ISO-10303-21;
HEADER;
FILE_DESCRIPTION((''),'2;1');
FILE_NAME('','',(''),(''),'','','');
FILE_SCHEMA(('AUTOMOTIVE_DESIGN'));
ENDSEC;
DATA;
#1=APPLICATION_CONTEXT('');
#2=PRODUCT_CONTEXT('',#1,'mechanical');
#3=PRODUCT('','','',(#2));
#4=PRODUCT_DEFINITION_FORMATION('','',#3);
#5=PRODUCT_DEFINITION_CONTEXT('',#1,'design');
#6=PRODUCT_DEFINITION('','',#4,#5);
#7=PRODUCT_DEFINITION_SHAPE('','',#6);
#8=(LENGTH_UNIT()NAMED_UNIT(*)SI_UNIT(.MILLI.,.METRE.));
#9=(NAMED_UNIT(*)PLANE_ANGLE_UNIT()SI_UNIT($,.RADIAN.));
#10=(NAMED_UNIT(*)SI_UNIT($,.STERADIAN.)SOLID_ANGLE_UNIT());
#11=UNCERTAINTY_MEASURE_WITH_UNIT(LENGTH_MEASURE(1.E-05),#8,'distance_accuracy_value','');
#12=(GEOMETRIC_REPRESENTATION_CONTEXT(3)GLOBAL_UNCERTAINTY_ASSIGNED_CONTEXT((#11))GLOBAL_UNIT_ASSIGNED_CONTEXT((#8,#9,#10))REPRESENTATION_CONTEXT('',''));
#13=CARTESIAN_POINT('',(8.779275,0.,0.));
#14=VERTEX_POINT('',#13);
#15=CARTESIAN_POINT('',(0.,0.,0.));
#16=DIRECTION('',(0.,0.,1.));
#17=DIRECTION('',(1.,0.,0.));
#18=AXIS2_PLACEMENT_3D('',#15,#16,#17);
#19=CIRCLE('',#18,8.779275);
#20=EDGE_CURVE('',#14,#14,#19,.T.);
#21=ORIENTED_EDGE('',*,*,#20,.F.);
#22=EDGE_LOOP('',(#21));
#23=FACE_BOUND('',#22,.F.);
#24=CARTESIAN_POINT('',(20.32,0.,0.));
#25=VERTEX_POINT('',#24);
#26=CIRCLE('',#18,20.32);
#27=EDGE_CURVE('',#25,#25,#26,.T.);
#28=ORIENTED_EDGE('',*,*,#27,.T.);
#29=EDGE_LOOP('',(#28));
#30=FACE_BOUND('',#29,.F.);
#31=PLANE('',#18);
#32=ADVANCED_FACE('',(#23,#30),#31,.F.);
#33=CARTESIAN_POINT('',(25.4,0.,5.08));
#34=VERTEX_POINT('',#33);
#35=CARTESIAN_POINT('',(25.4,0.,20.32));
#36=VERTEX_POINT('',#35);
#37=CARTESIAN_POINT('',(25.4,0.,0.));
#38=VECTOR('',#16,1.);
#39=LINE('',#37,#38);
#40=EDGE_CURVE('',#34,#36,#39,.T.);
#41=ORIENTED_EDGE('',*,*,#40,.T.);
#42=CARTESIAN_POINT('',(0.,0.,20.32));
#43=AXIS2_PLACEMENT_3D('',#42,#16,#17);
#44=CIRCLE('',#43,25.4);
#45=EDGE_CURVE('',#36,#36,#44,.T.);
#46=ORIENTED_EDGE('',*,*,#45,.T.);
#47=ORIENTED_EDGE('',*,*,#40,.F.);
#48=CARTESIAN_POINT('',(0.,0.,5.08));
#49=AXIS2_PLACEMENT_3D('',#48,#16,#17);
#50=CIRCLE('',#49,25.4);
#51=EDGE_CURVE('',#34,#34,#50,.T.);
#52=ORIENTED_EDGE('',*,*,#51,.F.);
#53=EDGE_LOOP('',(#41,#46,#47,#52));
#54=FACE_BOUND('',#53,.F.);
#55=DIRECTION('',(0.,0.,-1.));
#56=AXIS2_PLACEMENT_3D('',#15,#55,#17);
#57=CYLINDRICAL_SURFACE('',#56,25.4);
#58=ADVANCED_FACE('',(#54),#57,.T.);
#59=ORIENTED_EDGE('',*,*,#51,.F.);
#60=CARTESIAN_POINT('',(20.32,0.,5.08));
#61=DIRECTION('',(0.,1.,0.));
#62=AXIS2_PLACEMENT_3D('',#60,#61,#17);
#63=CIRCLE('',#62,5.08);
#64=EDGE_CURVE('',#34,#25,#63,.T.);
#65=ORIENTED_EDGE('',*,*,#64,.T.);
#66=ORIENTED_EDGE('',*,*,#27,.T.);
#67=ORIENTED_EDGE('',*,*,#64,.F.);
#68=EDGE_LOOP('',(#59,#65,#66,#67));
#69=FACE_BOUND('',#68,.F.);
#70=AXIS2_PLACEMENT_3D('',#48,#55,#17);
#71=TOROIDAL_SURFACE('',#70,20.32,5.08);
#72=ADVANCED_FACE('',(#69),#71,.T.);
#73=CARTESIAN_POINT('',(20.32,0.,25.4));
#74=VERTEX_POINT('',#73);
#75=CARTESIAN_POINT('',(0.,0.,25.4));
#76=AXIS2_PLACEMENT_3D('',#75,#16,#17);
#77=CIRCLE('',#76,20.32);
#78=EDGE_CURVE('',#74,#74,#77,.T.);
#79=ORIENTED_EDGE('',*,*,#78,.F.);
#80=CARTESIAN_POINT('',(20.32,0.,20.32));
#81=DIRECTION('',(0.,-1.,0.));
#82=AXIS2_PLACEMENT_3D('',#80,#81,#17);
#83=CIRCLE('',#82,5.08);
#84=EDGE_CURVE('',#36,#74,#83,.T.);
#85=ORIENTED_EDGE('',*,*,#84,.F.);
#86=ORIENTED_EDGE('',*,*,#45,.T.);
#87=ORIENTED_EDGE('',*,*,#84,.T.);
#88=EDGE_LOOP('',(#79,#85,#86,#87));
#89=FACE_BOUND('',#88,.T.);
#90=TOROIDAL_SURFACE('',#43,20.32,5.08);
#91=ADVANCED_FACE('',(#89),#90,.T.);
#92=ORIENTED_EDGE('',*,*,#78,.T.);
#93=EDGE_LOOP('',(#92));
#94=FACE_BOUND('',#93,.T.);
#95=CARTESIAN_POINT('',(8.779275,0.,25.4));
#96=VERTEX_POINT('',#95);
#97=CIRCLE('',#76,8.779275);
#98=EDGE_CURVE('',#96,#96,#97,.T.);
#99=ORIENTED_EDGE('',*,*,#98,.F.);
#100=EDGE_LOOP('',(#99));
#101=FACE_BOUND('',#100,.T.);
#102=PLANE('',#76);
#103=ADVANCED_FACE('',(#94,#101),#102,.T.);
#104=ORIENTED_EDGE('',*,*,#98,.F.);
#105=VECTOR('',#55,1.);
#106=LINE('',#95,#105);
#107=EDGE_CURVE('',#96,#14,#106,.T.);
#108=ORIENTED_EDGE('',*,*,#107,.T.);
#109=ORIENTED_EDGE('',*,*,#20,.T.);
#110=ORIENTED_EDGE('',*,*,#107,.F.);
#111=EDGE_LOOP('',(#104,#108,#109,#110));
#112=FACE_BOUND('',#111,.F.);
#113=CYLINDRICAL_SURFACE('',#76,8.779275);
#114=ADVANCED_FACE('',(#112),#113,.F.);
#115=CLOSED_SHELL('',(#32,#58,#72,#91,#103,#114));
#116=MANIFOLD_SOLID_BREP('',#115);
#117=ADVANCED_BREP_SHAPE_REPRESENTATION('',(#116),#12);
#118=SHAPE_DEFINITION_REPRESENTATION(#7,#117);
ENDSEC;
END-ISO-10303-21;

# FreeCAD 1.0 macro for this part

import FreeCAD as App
import Part
import Sketcher
Q = App.Units.Quantity


def edges_at(feature, points):
    """Names of the edges that pass closest to the given points."""
    edges = feature.Shape.Edges
    near = lambda p: min(range(len(edges)), key=lambda i: edges[i].distToShape(Part.Vertex(*p))[0])
    return sorted({f"Edge{near(p) + 1}" for p in points})

doc = App.newDocument("Part")
body = doc.addObject("PartDesign::Body", "Body")

# Sketch on XY plane
sketch1 = doc.addObject("Sketcher::SketchObject", "Sketch")
body.addObject(sketch1)
sketch1.AttachmentSupport = (doc.XY_Plane, [""])
sketch1.MapMode = "FlatFace"
sketch1.addGeometry(Part.Circle(App.Vector(0, 0, 0), App.Vector(0, 0, 1), 25), False)
sketch1.addConstraint(Sketcher.Constraint("Coincident", 0, 3, -1, 1))
sketch1.addConstraint(Sketcher.Constraint("Diameter", 0, Q("2 in")))
pad1 = doc.addObject("PartDesign::Pad", "Pad")
body.addObject(pad1)
pad1.Profile = sketch1
pad1.Length = Q("1 in")

# Sketch on XY plane
sketch2 = doc.addObject("Sketcher::SketchObject", "Sketch001")
body.addObject(sketch2)
sketch2.AttachmentSupport = (doc.XY_Plane, [""])
sketch2.MapMode = "FlatFace"
sketch2.AttachmentOffset = App.Placement(App.Vector(0, 0, 1 * 25.4), App.Rotation())
sketch2.addGeometry(Part.Circle(App.Vector(0, 0, 0), App.Vector(0, 0, 1), 9), False)
sketch2.addConstraint(Sketcher.Constraint("Coincident", 0, 3, -1, 1))
sketch2.addConstraint(Sketcher.Constraint("Diameter", 0, Q("17.55855 mm")))
pocket1 = doc.addObject("PartDesign::Pocket", "Pocket")
body.addObject(pocket1)
pocket1.Profile = sketch2
pocket1.Length = Q("1 in")
doc.recompute()

fillet = doc.addObject("PartDesign::Fillet", "Fillet")
body.addObject(fillet)
fillet.Base = (pocket1, edges_at(pocket1, [(-25.4, 0, 25.4)]))
fillet.Radius = Q("0.2 in")
doc.recompute()

fillet2 = doc.addObject("PartDesign::Fillet", "Fillet001")
body.addObject(fillet2)
fillet2.Base = (fillet, edges_at(fillet, [(-25.4, 0, 0)]))
fillet2.Radius = Q("0.2 in")

doc.recompute()
